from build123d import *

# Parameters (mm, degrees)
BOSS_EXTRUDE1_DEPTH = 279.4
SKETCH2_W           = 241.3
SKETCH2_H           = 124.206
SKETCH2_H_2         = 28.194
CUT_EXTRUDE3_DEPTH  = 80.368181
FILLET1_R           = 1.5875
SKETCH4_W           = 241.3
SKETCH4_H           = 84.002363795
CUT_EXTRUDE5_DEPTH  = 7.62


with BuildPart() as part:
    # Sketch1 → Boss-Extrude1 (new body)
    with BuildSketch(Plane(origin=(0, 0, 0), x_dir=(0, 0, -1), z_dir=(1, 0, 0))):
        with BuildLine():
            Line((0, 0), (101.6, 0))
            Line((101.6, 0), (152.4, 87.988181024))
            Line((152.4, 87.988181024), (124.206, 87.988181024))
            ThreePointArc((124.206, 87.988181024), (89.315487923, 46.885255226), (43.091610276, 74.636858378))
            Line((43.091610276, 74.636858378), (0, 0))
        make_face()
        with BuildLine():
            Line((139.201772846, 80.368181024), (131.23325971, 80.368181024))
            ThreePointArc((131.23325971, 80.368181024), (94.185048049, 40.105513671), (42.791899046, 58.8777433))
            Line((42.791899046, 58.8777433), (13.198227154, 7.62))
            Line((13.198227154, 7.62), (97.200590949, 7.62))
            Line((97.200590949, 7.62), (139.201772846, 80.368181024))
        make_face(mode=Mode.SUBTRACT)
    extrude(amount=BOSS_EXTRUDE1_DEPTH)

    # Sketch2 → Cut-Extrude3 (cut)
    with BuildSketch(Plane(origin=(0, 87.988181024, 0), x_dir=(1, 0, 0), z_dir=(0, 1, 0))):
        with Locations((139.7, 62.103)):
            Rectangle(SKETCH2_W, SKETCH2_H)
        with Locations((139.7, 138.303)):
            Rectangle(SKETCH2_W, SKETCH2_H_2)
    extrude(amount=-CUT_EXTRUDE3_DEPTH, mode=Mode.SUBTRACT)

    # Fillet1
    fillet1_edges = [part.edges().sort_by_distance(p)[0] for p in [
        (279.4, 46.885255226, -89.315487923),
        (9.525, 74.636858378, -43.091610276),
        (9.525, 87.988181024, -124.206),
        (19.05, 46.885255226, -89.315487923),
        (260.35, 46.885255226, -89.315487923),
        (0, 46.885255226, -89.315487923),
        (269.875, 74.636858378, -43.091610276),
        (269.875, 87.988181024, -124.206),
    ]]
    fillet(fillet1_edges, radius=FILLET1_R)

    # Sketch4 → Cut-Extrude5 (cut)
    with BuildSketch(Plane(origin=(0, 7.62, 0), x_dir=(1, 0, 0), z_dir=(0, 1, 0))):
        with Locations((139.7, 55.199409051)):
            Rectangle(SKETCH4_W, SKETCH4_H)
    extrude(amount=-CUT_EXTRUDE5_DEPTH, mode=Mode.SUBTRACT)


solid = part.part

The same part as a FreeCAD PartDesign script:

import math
import FreeCAD as App
import Part
import Sketcher
Q = App.Units.Quantity


def edges_at(feature, points):
    """Names of the edges that pass closest to the given points."""
    edges = feature.Shape.Edges
    near = lambda p: min(range(len(edges)), key=lambda i: edges[i].distToShape(Part.Vertex(*p))[0])
    return sorted({f"Edge{near(p) + 1}" for p in points})


def add_polygon(sketch, points):
    """Adds a closed chain of lines whose ends are joined by coincident constraints."""
    first, n = sketch.GeometryCount, len(points)
    for a, b in zip(points, points[1:] + points[:1]):
        sketch.addGeometry(Part.LineSegment(App.Vector(*a, 0), App.Vector(*b, 0)), False)
    for i in range(n):
        sketch.addConstraint(Sketcher.Constraint("Coincident", first + i, 2, first + (i + 1) % n, 1))

doc = App.newDocument("Part")
params = doc.addObject("Spreadsheet::Sheet", "Params")
for row, (alias, value) in enumerate([
    ("sketch1_height", "4 in"),
    ("sketch1_radius", "1.64 in"),
    ("sketch1_radius2", "1.94 in"),
    ("sketch1_length", "4 in"),
    ("sketch1_height2", "1.11 in"),
    ("pad1_length", "11 in"),
    ("sketch2_height", "6 in"),
    ("sketch2_width", "9.5 in"),
    ("pocket1_length", "80.368181 mm"),
    ("fillet_radius", "0.0625 in"),
    ("sketch3_width", "9.5 in"),
    ("pocket2_length", "0.3 in"),
], start=1):
    params.set(f"A{row}", alias)
    params.set(f"B{row}", "=" + value)
    params.setAlias(f"B{row}", alias)

body = doc.addObject("PartDesign::Body", "Body")

# Sketch on YZ plane
sketch1 = body.newObject("Sketcher::SketchObject", "Sketch")
sketch1.AttachmentSupport = (doc.getObject("YZ_Plane"), [""])
sketch1.MapMode = "FlatFace"
sketch1.addGeometry(Part.LineSegment(App.Vector(0, 0, 0), App.Vector(0, -102, 0)), False)
sketch1.addGeometry(Part.LineSegment(App.Vector(0, -102, 0), App.Vector(88, -152, 0)), False)
sketch1.addGeometry(Part.LineSegment(App.Vector(88, -152, 0), App.Vector(88, -124, 0)), False)
sketch1.addGeometry(Part.ArcOfCircle(Part.Circle(App.Vector(88, -83, 0), App.Vector(0, 0, 1), 42), math.radians(109), math.radians(270)), False)
sketch1.addGeometry(Part.LineSegment(App.Vector(75, -43, 0), App.Vector(0, 0, 0)), False)
sketch1.addGeometry(Part.LineSegment(App.Vector(80, -131, 0), App.Vector(80, -139, 0)), False)
sketch1.addGeometry(Part.LineSegment(App.Vector(80, -139, 0), App.Vector(8, -97, 0)), False)
sketch1.addGeometry(Part.LineSegment(App.Vector(8, -97, 0), App.Vector(8, -13, 0)), False)
sketch1.addGeometry(Part.LineSegment(App.Vector(8, -13, 0), App.Vector(59, -43, 0)), False)
sketch1.addGeometry(Part.ArcOfCircle(Part.Circle(App.Vector(88, -83, 0), App.Vector(0, 0, 1), 49), math.radians(126), math.radians(261)), False)
sketch1.addConstraint(Sketcher.Constraint("Coincident", 0, 2, 1, 1))
sketch1.addConstraint(Sketcher.Constraint("Coincident", 1, 2, 2, 1))
sketch1.addConstraint(Sketcher.Constraint("Coincident", 2, 2, 3, 2))
sketch1.addConstraint(Sketcher.Constraint("Coincident", 3, 1, 4, 1))
sketch1.addConstraint(Sketcher.Constraint("Coincident", 4, 2, 0, 1))
sketch1.addConstraint(Sketcher.Constraint("Coincident", 5, 2, 6, 1))
sketch1.addConstraint(Sketcher.Constraint("Coincident", 6, 2, 7, 1))
sketch1.addConstraint(Sketcher.Constraint("Coincident", 7, 2, 8, 1))
sketch1.addConstraint(Sketcher.Constraint("Coincident", 8, 2, 9, 1))
sketch1.addConstraint(Sketcher.Constraint("Coincident", 9, 2, 5, 1))
sketch1.addConstraint(Sketcher.Constraint("Vertical", 0))
sketch1.addConstraint(Sketcher.Constraint("Vertical", 2))
sketch1.addConstraint(Sketcher.Constraint("Vertical", 5))
sketch1.addConstraint(Sketcher.Constraint("Vertical", 7))
sketch1.addConstraint(Sketcher.Constraint("Coincident", 4, 2, -1, 1))
sketch1.addConstraint(Sketcher.Constraint("Coincident", 9, 3, 3, 3))
sketch1.addConstraint(Sketcher.Constraint("Parallel", 1, 4))
sketch1.addConstraint(Sketcher.Constraint("Parallel", 4, 6))
sketch1.addConstraint(Sketcher.Constraint("Parallel", 6, 8))
sketch1.addConstraint(Sketcher.Constraint("Vertical", 9, 3, 1, 2))
sketch1.addConstraint(Sketcher.Constraint("DistanceY", 0, 2, 0, 1, Q("4 in")))
sketch1.addConstraint(Sketcher.Constraint("Radius", 3, Q("1.64 in")))
sketch1.addConstraint(Sketcher.Constraint("Radius", 9, Q("1.94 in")))
sketch1.addConstraint(Sketcher.Constraint("Distance", 1, Q("4 in")))
sketch1.addConstraint(Sketcher.Constraint("DistanceY", 1, 2, -1, 1, Q("6 in")))
sketch1.addConstraint(Sketcher.Constraint("DistanceY", 2, 1, 2, 2, Q("1.11 in")))
sketch1.addConstraint(Sketcher.Constraint("DistanceX", -1, 1, 6, 2, Q("0.3 in")))
sketch1.addConstraint(Sketcher.Constraint("DistanceX", 5, 2, 1, 2, Q("0.3 in")))
sketch1.addConstraint(Sketcher.Constraint("DistanceY", 8, 2, -1, 1, 42.791899))
sketch1.addConstraint(Sketcher.Constraint("DistanceY", 5, 2, 5, 1, 7.968513))
sketch1.setExpression("Constraints[20]", "Params.sketch1_height")
sketch1.setExpression("Constraints[21]", "Params.sketch1_radius")
sketch1.setExpression("Constraints[22]", "Params.sketch1_radius2")
sketch1.setExpression("Constraints[23]", "Params.sketch1_length")
sketch1.setExpression("Constraints[25]", "Params.sketch1_height2")
pad1 = body.newObject("PartDesign::Pad", "Pad")
pad1.Profile = sketch1
pad1.setExpression("Length", "Params.pad1_length")

# Sketch on XZ plane
sketch2 = body.newObject("Sketcher::SketchObject", "Sketch001")
sketch2.AttachmentSupport = (doc.getObject("XZ_Plane"), [""])
sketch2.MapMode = "FlatFace"
sketch2.AttachmentOffset = App.Placement(App.Vector(0, 0, -87.988181), App.Rotation())
add_polygon(sketch2, [(19, 0), (260, 0), (260, -152), (19, -152)])  # lines 0-3
sketch2.addConstraint(Sketcher.Constraint("Horizontal", 0))
sketch2.addConstraint(Sketcher.Constraint("Vertical", 1))
sketch2.addConstraint(Sketcher.Constraint("Horizontal", 2))
sketch2.addConstraint(Sketcher.Constraint("Vertical", 3))
sketch2.addConstraint(Sketcher.Constraint("PointOnObject", 0, 2, -1))
sketch2.addConstraint(Sketcher.Constraint("DistanceY", 1, 2, 1, 1, Q("6 in")))
sketch2.addConstraint(Sketcher.Constraint("DistanceX", 0, 1, 0, 2, Q("9.5 in")))
sketch2.addConstraint(Sketcher.Constraint("DistanceX", -1, 1, 0, 2, Q("10.25 in")))
sketch2.setExpression("Constraints[9]", "Params.sketch2_height")
sketch2.setExpression("Constraints[10]", "Params.sketch2_width")
pocket1 = body.newObject("PartDesign::Pocket", "Pocket")
pocket1.Profile = sketch2
pocket1.setExpression("Length", "Params.pocket1_length")
pocket1.Reversed = True
doc.recompute()

fillet = body.newObject("PartDesign::Fillet", "Fillet")
fillet.Base = (pocket1, edges_at(pocket1, [
    (279.4, 46.885, -89.315),
    (9.525, 74.637, -43.092),
    (9.525, 87.988, -124.206),
    (19.05, 46.885, -89.315),
    (260.35, 46.885, -89.315),
    (0, 46.885, -89.315),
    (269.875, 74.637, -43.092),
    (269.875, 87.988, -124.206),
]))
fillet.setExpression("Radius", "Params.fillet_radius")

# Sketch on XZ plane
sketch3 = body.newObject("Sketcher::SketchObject", "Sketch002")
sketch3.AttachmentSupport = (doc.getObject("XZ_Plane"), [""])
sketch3.MapMode = "FlatFace"
sketch3.AttachmentOffset = App.Placement(App.Vector(0, 0, -0.3 * 25.4), App.Rotation())
add_polygon(sketch3, [(19, -97), (19, -13), (260, -13), (260, -97)])  # lines 0-3
sketch3.addConstraint(Sketcher.Constraint("Vertical", 0))
sketch3.addConstraint(Sketcher.Constraint("Horizontal", 1))
sketch3.addConstraint(Sketcher.Constraint("Vertical", 2))
sketch3.addConstraint(Sketcher.Constraint("Horizontal", 3))
sketch3.addConstraint(Sketcher.Constraint("DistanceX", 1, 1, 1, 2, Q("9.5 in")))
sketch3.addConstraint(Sketcher.Constraint("DistanceX", -1, 1, 0, 2, Q("0.75 in")))
sketch3.addConstraint(Sketcher.Constraint("DistanceY", 0, 1, 0, 2, 84.002364))
sketch3.addConstraint(Sketcher.Constraint("DistanceY", 2, 2, -1, 1, 97.200591))
sketch3.setExpression("Constraints[8]", "Params.sketch3_width")
pocket2 = body.newObject("PartDesign::Pocket", "Pocket001")
pocket2.Profile = sketch3
pocket2.setExpression("Length", "Params.pocket2_length")
pocket2.Reversed = True

doc.recompute()
